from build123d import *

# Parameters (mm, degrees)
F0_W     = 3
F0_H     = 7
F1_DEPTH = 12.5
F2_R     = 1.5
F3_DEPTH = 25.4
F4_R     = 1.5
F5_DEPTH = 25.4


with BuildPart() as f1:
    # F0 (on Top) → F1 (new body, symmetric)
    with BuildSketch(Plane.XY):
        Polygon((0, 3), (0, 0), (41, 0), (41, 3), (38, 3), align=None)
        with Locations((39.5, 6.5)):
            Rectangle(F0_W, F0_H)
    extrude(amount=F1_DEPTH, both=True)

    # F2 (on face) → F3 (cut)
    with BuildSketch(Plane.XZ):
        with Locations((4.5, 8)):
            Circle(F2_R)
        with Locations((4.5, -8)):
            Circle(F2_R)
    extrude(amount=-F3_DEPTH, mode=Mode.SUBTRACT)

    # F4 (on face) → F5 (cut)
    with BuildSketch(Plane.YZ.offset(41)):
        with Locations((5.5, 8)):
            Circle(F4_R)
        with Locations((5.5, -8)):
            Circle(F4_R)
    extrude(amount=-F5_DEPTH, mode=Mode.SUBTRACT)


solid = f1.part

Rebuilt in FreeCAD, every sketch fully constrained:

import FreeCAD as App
import Part
import Sketcher

V = App.Vector


def add_polygon(sketch, points):
    """Adds a closed chain of lines whose ends are joined by coincident constraints."""
    first, n = sketch.GeometryCount, len(points)
    for a, b in zip(points, points[1:] + points[:1]):
        sketch.addGeometry(Part.LineSegment(App.Vector(*a, 0), App.Vector(*b, 0)), False)
    for i in range(n):
        sketch.addConstraint(Sketcher.Constraint("Coincident", first + i, 2, first + (i + 1) % n, 1))

doc = App.newDocument("Part")
body = doc.addObject("PartDesign::Body", "Body")

# Sketch on XY plane
sketch1 = body.newObject("Sketcher::SketchObject", "Sketch")
sketch1.AttachmentSupport = (doc.getObject("XY_Plane"), [""])
sketch1.MapMode = "FlatFace"
add_polygon(sketch1, [(0, 3), (0, 0), (41, 0), (41, 10), (38, 10), (38, 3)])  # lines 0-5
sketch1.addConstraint([
    Sketcher.Constraint("Vertical", 0),
    Sketcher.Constraint("Horizontal", 1),
    Sketcher.Constraint("Vertical", 2),
    Sketcher.Constraint("Horizontal", 3),
    Sketcher.Constraint("Vertical", 4),
    Sketcher.Constraint("Horizontal", 5),
    Sketcher.Constraint("Coincident", 0, 2, -1, 1),
    Sketcher.Constraint("Equal", 3, 0),
    Sketcher.Constraint("DistanceX", 1, 1, 1, 2, 41.0),
    Sketcher.Constraint("DistanceX", 3, 2, 3, 1, 3.0),
    Sketcher.Constraint("DistanceY", 2, 1, 2, 2, 10.0),
])
pad1 = body.newObject("PartDesign::Pad", "Pad")
pad1.Profile = sketch1
pad1.Length = 25
pad1.Midplane = True

# Sketch on XZ plane
sketch2 = body.newObject("Sketcher::SketchObject", "Sketch001")
sketch2.AttachmentSupport = (doc.getObject("XZ_Plane"), [""])
sketch2.MapMode = "FlatFace"
sketch2.addGeometry([
    Part.Circle(V(4.5, 8, 0), V(0, 0, 1), 1.5),
    Part.Circle(V(4.5, -8, 0), V(0, 0, 1), 1.5),
], False)
sketch2.addConstraint([
    Sketcher.Constraint("Equal", 0, 1),
    Sketcher.Constraint("Symmetric", 0, 3, 1, 3, -1),
    Sketcher.Constraint("Diameter", 0, 3.0),
    Sketcher.Constraint("DistanceY", -1, 1, 0, 3, 8.0),
    Sketcher.Constraint("DistanceX", -1, 1, 0, 3, 4.5),
])
pocket1 = body.newObject("PartDesign::Pocket", "Pocket")
pocket1.Profile = sketch2
pocket1.Length = 25.4

# Sketch on YZ plane
sketch3 = body.newObject("Sketcher::SketchObject", "Sketch002")
sketch3.AttachmentSupport = (doc.getObject("YZ_Plane"), [""])
sketch3.MapMode = "FlatFace"
sketch3.AttachmentOffset = App.Placement(V(0, 0, 41), App.Rotation())
sketch3.addGeometry([
    Part.Circle(V(5.5, 8, 0), V(0, 0, 1), 1.5),
    Part.Circle(V(5.5, -8, 0), V(0, 0, 1), 1.5),
], False)
sketch3.addConstraint([
    Sketcher.Constraint("Equal", 0, 1),
    Sketcher.Constraint("Symmetric", 0, 3, 1, 3, -1),
    Sketcher.Constraint("Diameter", 0, 3.0),
    Sketcher.Constraint("DistanceY", -1, 1, 0, 3, 8.0),
    Sketcher.Constraint("DistanceX", -1, 1, 0, 3, 5.5),
])
pocket2 = body.newObject("PartDesign::Pocket", "Pocket001")
pocket2.Profile = sketch3
pocket2.Length = 25.4

doc.recompute()
